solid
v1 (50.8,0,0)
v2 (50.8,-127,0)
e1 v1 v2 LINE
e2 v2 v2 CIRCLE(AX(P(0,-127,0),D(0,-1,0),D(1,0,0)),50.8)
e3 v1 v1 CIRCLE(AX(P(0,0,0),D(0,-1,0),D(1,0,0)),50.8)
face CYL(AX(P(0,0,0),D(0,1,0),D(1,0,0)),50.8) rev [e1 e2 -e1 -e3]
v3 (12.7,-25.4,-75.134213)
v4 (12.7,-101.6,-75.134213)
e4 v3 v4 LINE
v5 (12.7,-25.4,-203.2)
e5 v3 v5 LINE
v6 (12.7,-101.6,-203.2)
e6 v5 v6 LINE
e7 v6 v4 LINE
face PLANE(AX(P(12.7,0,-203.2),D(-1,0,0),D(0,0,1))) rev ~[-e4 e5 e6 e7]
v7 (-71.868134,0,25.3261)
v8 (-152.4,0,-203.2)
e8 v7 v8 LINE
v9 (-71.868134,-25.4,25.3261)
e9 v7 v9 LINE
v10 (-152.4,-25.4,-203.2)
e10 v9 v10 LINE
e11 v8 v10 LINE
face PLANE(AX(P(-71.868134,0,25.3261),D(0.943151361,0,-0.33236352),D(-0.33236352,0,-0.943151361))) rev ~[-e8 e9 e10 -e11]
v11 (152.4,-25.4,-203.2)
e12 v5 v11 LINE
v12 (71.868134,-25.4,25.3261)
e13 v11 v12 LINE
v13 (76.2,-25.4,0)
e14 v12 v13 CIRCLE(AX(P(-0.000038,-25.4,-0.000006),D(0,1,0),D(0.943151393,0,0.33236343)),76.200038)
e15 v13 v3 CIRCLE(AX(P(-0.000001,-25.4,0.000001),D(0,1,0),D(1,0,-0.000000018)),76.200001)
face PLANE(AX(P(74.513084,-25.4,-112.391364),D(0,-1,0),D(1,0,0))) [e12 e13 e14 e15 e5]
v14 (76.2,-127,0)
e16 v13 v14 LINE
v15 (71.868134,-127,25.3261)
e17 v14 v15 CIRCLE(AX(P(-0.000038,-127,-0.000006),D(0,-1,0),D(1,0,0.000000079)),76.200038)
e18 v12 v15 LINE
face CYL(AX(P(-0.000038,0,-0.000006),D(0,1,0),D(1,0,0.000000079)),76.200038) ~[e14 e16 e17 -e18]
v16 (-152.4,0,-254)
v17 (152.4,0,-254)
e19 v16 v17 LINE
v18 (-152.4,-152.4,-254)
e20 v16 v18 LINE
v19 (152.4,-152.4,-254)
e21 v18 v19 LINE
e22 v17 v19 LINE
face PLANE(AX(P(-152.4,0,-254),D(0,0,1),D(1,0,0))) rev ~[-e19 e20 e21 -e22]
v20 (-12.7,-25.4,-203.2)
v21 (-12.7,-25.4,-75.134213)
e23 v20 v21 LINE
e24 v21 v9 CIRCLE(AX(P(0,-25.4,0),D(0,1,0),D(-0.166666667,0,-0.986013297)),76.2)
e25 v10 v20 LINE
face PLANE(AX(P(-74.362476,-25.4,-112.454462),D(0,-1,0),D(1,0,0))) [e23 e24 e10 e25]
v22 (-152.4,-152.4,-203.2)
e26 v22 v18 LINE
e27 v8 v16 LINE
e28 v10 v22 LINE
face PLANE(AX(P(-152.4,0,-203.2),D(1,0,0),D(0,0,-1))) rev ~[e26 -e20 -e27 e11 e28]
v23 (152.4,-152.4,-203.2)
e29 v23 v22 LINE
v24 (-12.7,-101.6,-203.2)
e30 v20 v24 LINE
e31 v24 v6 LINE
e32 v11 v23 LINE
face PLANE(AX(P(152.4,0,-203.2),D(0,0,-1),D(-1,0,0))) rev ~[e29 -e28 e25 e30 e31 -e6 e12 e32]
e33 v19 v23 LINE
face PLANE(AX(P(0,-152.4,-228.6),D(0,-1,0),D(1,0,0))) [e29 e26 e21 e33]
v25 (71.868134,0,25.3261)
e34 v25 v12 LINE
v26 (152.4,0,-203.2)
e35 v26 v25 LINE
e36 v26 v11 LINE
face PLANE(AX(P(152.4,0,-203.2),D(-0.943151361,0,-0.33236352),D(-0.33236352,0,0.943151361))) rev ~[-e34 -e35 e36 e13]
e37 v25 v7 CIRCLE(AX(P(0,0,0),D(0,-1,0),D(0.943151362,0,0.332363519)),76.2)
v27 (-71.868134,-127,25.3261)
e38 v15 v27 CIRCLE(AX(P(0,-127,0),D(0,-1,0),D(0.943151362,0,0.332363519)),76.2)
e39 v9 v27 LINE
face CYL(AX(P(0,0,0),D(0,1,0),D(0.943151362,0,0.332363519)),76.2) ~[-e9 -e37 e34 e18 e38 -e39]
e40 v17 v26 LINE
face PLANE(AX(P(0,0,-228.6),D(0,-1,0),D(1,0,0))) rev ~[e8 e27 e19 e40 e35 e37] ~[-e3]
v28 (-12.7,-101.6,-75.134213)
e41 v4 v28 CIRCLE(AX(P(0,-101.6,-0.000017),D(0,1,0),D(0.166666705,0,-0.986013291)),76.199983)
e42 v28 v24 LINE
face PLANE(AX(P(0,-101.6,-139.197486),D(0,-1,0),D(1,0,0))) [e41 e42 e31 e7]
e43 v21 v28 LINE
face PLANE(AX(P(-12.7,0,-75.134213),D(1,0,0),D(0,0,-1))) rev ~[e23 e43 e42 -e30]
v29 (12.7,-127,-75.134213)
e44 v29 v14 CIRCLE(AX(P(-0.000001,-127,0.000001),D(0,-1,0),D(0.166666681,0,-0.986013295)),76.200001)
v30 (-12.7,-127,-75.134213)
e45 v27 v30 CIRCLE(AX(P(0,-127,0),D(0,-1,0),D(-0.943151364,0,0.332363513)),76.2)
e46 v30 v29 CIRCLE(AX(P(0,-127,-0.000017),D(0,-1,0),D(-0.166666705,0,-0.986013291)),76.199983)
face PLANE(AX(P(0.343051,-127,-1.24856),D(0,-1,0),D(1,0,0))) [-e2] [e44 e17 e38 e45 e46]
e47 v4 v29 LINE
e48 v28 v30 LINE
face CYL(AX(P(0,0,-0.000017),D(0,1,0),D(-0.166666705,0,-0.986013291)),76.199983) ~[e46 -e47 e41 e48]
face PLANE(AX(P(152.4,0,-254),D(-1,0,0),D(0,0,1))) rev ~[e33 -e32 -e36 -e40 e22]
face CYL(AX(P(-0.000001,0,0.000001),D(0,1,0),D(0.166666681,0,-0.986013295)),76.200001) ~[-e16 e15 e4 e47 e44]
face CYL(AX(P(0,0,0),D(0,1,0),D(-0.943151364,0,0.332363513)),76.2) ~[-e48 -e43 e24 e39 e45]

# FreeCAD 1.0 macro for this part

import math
import FreeCAD as App
import Part
import Sketcher
from FreeCAD import Vector
Q = App.Units.Quantity

doc = App.newDocument("Part")
body = doc.addObject("PartDesign::Body", "Body")

sketch1 = body.newObject("Sketcher::SketchObject", "Sketch")
sketch1.AttachmentSupport = (doc.getObject("XZ_Plane"), [""])
sketch1.MapMode = "FlatFace"
sketch1.addGeometry(Part.ArcOfCircle(Part.Circle(Vector(-0.000001, 0.000001, 0), Vector(0, 0, 1), 76.200001), math.radians(-80.405931), math.radians(-0.000001)), False)
sketch1.addGeometry(Part.ArcOfCircle(Part.Circle(Vector(-0.000038, -0.000006, 0), Vector(0, 0, 1), 76.200038), math.radians(0.000005), math.radians(19.412289)), False)
sketch1.addGeometry(Part.ArcOfCircle(Part.Circle(Vector(0, 0, 0), Vector(0, 0, 1), 76.2), math.radians(19.412294), math.radians(160.587706)), False)
sketch1.addGeometry(Part.ArcOfCircle(Part.Circle(Vector(0, 0, 0), Vector(0, 0, 1), 76.2), math.radians(160.587706), math.radians(260.405932)), False)
sketch1.addGeometry(Part.ArcOfCircle(Part.Circle(Vector(0, -0.000017, 0), Vector(0, 0, 1), 76.199983), math.radians(-99.59407), math.radians(-80.40593)), False)
sketch1.addGeometry(Part.Circle(Vector(0, 0, 0), Vector(0, 0, 1), 50.8), False)
sketch1.addConstraint(Sketcher.Constraint("Coincident", 0, 2, 1, 1))
sketch1.addConstraint(Sketcher.Constraint("Coincident", 1, 2, 2, 1))
sketch1.addConstraint(Sketcher.Constraint("Coincident", 2, 2, 3, 1))
sketch1.addConstraint(Sketcher.Constraint("Coincident", 3, 2, 4, 1))
sketch1.addConstraint(Sketcher.Constraint("Coincident", 4, 2, 0, 1))
sketch1.addConstraint(Sketcher.Constraint("Coincident", 0, 3, -1, 1))
sketch1.addConstraint(Sketcher.Constraint("Coincident", 2, 3, -1, 1))
sketch1.addConstraint(Sketcher.Constraint("Coincident", 3, 3, -1, 1))
sketch1.addConstraint(Sketcher.Constraint("Coincident", 5, 3, -1, 1))
sketch1.addConstraint(Sketcher.Constraint("PointOnObject", 4, 3, -2))
sketch1.addConstraint(Sketcher.Constraint("PointOnObject", 0, 2, -1))
sketch1.addConstraint(Sketcher.Constraint("Diameter", 5, Q("4 in")))
sketch1.addConstraint(Sketcher.Constraint("Radius", 0, Q("3.0000001 in")))
sketch1.addConstraint(Sketcher.Constraint("DistanceX", 3, 2, 4, 2, Q("1 in")))
sketch1.addConstraint(Sketcher.Constraint("DistanceX", 3, 2, -1, 1, Q("0.5 in")))
sketch1.addConstraint(Sketcher.Constraint("Radius", 1, Q("76.200038 mm")))
sketch1.addConstraint(Sketcher.Constraint("Radius", 4, Q("76.199983 mm")))
sketch1.addConstraint(Sketcher.Constraint("DistanceY", -1, 1, 1, 2, Q("25.3261 mm")))
sketch1.addConstraint(Sketcher.Constraint("DistanceY", -1, 1, 2, 2, Q("25.3261 mm")))
pad1 = body.newObject("PartDesign::Pad", "Pad")
pad1.Profile = sketch1
pad1.Length = Q("5 in")

sketch2 = body.newObject("Sketcher::SketchObject", "Sketch001")
sketch2.AttachmentSupport = (doc.getObject("XZ_Plane"), [""])
sketch2.MapMode = "FlatFace"
sketch2.addGeometry(Part.ArcOfCircle(Part.Circle(Vector(0, 0, 0), Vector(0, 0, 1), 76.2), math.radians(160.587706), math.radians(260.405932)), False)
sketch2.addGeometry(Part.LineSegment(Vector(-71.868134, 25.3261, 0), Vector(-152.4, -203.2, 0)), False)
sketch2.addGeometry(Part.LineSegment(Vector(-152.4, -203.2, 0), Vector(-12.7, -203.2, 0)), False)
sketch2.addGeometry(Part.LineSegment(Vector(-12.7, -203.2, 0), Vector(-12.7, -75.134213, 0)), False)
sketch2.addGeometry(Part.ArcOfCircle(Part.Circle(Vector(-0.000038, -0.000006, 0), Vector(0, 0, 1), 76.200038), math.radians(0.000005), math.radians(19.412289)), False)
sketch2.addGeometry(Part.ArcOfCircle(Part.Circle(Vector(-0.000001, 0.000001, 0), Vector(0, 0, 1), 76.200001), math.radians(-80.405931), math.radians(-0.000001)), False)
sketch2.addGeometry(Part.LineSegment(Vector(12.7, -75.134213, 0), Vector(12.7, -203.2, 0)), False)
sketch2.addGeometry(Part.LineSegment(Vector(12.7, -203.2, 0), Vector(152.4, -203.2, 0)), False)
sketch2.addGeometry(Part.LineSegment(Vector(152.4, -203.2, 0), Vector(71.868134, 25.3261, 0)), False)
sketch2.addConstraint(Sketcher.Constraint("Coincident", 0, 1, 1, 1))
sketch2.addConstraint(Sketcher.Constraint("Coincident", 1, 2, 2, 1))
sketch2.addConstraint(Sketcher.Constraint("Coincident", 2, 2, 3, 1))
sketch2.addConstraint(Sketcher.Constraint("Coincident", 3, 2, 0, 2))
sketch2.addConstraint(Sketcher.Constraint("Coincident", 4, 1, 5, 2))
sketch2.addConstraint(Sketcher.Constraint("Coincident", 5, 1, 6, 1))
sketch2.addConstraint(Sketcher.Constraint("Coincident", 6, 2, 7, 1))
sketch2.addConstraint(Sketcher.Constraint("Coincident", 7, 2, 8, 1))
sketch2.addConstraint(Sketcher.Constraint("Coincident", 8, 2, 4, 2))
sketch2.addConstraint(Sketcher.Constraint("Horizontal", 2))
sketch2.addConstraint(Sketcher.Constraint("Vertical", 3))
sketch2.addConstraint(Sketcher.Constraint("Vertical", 6))
sketch2.addConstraint(Sketcher.Constraint("Horizontal", 7))
sketch2.addConstraint(Sketcher.Constraint("Coincident", 0, 3, -1, 1))
sketch2.addConstraint(Sketcher.Constraint("Coincident", 5, 3, -1, 1))
sketch2.addConstraint(Sketcher.Constraint("PointOnObject", 4, 1, -1))
sketch2.addConstraint(Sketcher.Constraint("Radius", 0, Q("3 in")))
sketch2.addConstraint(Sketcher.Constraint("Radius", 5, Q("3.0000001 in")))
sketch2.addConstraint(Sketcher.Constraint("DistanceX", 2, 1, 2, 2, Q("5.5 in")))
sketch2.addConstraint(Sketcher.Constraint("DistanceX", 7, 1, 7, 2, Q("5.5 in")))
sketch2.addConstraint(Sketcher.Constraint("DistanceX", 1, 2, -1, 1, Q("6 in")))
sketch2.addConstraint(Sketcher.Constraint("DistanceY", 1, 2, -1, 1, Q("8 in")))
sketch2.addConstraint(Sketcher.Constraint("DistanceY", 6, 2, -1, 1, Q("8 in")))
sketch2.addConstraint(Sketcher.Constraint("DistanceX", -1, 1, 7, 2, Q("6 in")))
sketch2.addConstraint(Sketcher.Constraint("Radius", 4, Q("76.200038 mm")))
sketch2.addConstraint(Sketcher.Constraint("DistanceY", -1, 1, 0, 1, Q("25.3261 mm")))
sketch2.addConstraint(Sketcher.Constraint("DistanceY", -1, 1, 8, 2, Q("25.3261 mm")))
sketch2.addConstraint(Sketcher.Constraint("Distance", 8, Q("242.300557 mm")))
pad2 = body.newObject("PartDesign::Pad", "Pad001")
pad2.Profile = sketch2
pad2.Length = Q("1 in")

sketch3 = body.newObject("Sketcher::SketchObject", "Sketch002")
sketch3.AttachmentSupport = (doc.getObject("XZ_Plane"), [""])
sketch3.MapMode = "FlatFace"
sketch3.addGeometry(Part.LineSegment(Vector(152, -254, 0), Vector(152, -203, 0)), False)
sketch3.addGeometry(Part.LineSegment(Vector(152, -203, 0), Vector(-152, -203, 0)), False)
sketch3.addGeometry(Part.LineSegment(Vector(-152, -203, 0), Vector(-152, -254, 0)), False)
sketch3.addGeometry(Part.LineSegment(Vector(-152, -254, 0), Vector(152, -254, 0)), False)
sketch3.addConstraint(Sketcher.Constraint("Coincident", 0, 2, 1, 1))
sketch3.addConstraint(Sketcher.Constraint("Coincident", 1, 2, 2, 1))
sketch3.addConstraint(Sketcher.Constraint("Coincident", 2, 2, 3, 1))
sketch3.addConstraint(Sketcher.Constraint("Coincident", 3, 2, 0, 1))
sketch3.addConstraint(Sketcher.Constraint("Vertical", 0))
sketch3.addConstraint(Sketcher.Constraint("Horizontal", 1))
sketch3.addConstraint(Sketcher.Constraint("Vertical", 2))
sketch3.addConstraint(Sketcher.Constraint("Horizontal", 3))
sketch3.addConstraint(Sketcher.Constraint("DistanceX", 1, 2, 1, 1, Q("12 in")))
sketch3.addConstraint(Sketcher.Constraint("DistanceY", 0, 1, 0, 2, Q("2 in")))
sketch3.addConstraint(Sketcher.Constraint("DistanceX", -1, 1, 0, 2, Q("6 in")))
sketch3.addConstraint(Sketcher.Constraint("DistanceY", 0, 2, -1, 1, Q("8 in")))
pad3 = body.newObject("PartDesign::Pad", "Pad002")
pad3.Profile = sketch3
pad3.Length = Q("6 in")

sketch4 = body.newObject("Sketcher::SketchObject", "Sketch003")
sketch4.AttachmentSupport = (doc.getObject("XZ_Plane"), [""])
sketch4.MapMode = "FlatFace"
sketch4.addGeometry(Part.LineSegment(Vector(13, -203, 0), Vector(13, -75, 0)), False)
sketch4.addGeometry(Part.ArcOfCircle(Part.Circle(Vector(0, 0, 0), Vector(0, 0, 1), 76), math.radians(-99.59), math.radians(-80.41)), False)
sketch4.addGeometry(Part.LineSegment(Vector(-13, -75, 0), Vector(-13, -203, 0)), False)
sketch4.addGeometry(Part.LineSegment(Vector(-13, -203, 0), Vector(13, -203, 0)), False)
sketch4.addConstraint(Sketcher.Constraint("Coincident", 0, 2, 1, 2))
sketch4.addConstraint(Sketcher.Constraint("Coincident", 1, 1, 2, 1))
sketch4.addConstraint(Sketcher.Constraint("Coincident", 2, 2, 3, 1))
sketch4.addConstraint(Sketcher.Constraint("Coincident", 3, 2, 0, 1))
sketch4.addConstraint(Sketcher.Constraint("Vertical", 0))
sketch4.addConstraint(Sketcher.Constraint("Vertical", 2))
sketch4.addConstraint(Sketcher.Constraint("Horizontal", 3))
sketch4.addConstraint(Sketcher.Constraint("Symmetric", 0, 2, 1, 1, -2))
sketch4.addConstraint(Sketcher.Constraint("DistanceX", 3, 1, 3, 2, Q("1 in")))
sketch4.addConstraint(Sketcher.Constraint("DistanceY", 2, 2, -1, 1, Q("8 in")))
sketch4.addConstraint(Sketcher.Constraint("Radius", 1, Q("76.199983 mm")))
sketch4.addConstraint(Sketcher.Constraint("DistanceY", 0, 1, 0, 2, Q("128.065787 mm")))
pad4 = body.newObject("PartDesign::Pad", "Pad003")
pad4.Profile = sketch4
pad4.Length = Q("4 in")

doc.recompute()
